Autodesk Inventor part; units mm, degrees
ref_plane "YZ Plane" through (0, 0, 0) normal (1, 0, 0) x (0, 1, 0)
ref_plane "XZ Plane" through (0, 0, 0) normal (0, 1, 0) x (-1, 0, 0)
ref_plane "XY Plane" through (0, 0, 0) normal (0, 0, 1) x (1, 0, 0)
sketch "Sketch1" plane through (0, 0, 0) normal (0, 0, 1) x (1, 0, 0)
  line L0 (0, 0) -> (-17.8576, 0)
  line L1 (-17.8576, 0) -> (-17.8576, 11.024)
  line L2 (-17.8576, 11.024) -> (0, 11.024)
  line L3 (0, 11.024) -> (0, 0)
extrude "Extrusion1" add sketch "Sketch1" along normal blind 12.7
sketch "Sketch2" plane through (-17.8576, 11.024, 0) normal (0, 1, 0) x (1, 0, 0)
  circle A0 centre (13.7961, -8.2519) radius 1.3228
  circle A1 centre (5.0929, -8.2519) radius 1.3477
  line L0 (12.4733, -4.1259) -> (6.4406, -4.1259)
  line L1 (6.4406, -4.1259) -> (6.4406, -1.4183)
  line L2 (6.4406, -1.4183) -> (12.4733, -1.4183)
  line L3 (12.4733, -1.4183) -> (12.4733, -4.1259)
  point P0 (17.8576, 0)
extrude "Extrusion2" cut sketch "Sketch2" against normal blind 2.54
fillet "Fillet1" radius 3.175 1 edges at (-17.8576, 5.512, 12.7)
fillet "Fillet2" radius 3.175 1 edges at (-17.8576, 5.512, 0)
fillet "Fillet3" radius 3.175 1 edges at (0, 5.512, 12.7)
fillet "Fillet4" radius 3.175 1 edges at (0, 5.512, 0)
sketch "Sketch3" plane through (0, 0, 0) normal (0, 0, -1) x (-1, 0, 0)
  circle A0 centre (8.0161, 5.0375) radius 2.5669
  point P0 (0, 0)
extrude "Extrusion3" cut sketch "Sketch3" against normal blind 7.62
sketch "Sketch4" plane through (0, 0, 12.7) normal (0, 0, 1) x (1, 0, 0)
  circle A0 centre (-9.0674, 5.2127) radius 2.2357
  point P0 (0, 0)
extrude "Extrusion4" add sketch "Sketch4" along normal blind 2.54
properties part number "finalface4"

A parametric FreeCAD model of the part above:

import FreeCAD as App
import Part
import Sketcher
from FreeCAD import Vector
Q = App.Units.Quantity


def edges_at(feature, points):
    """Names of the edges that pass closest to the given points."""
    edges = feature.Shape.Edges
    near = lambda p: min(range(len(edges)), key=lambda i: edges[i].distToShape(Part.Vertex(*p))[0])
    return sorted({f"Edge{near(p) + 1}" for p in points})


def add_polygon(sketch, points):
    """Adds a closed chain of lines whose ends are joined by coincident constraints."""
    first, n = sketch.GeometryCount, len(points)
    for a, b in zip(points, points[1:] + points[:1]):
        sketch.addGeometry(Part.LineSegment(App.Vector(*a, 0), App.Vector(*b, 0)), False)
    for i in range(n):
        sketch.addConstraint(Sketcher.Constraint("Coincident", first + i, 2, first + (i + 1) % n, 1))

doc = App.newDocument("Part")
body = doc.addObject("PartDesign::Body", "Body")

# Sketch on XY plane
sketch1 = doc.addObject("Sketcher::SketchObject", "Sketch")
body.addObject(sketch1)
sketch1.AttachmentSupport = (doc.XY_Plane, [""])
sketch1.MapMode = "FlatFace"
add_polygon(sketch1, [(-18, 0), (0, 0), (0, 11), (-18, 11)])  # lines 0-3
sketch1.addConstraint([
    Sketcher.Constraint("Horizontal", 0),
    Sketcher.Constraint("Vertical", 1),
    Sketcher.Constraint("Horizontal", 2),
    Sketcher.Constraint("Vertical", 3),
    Sketcher.Constraint("Coincident", 0, 2, -1, 1),
    Sketcher.Constraint("DistanceX", 0, 1, 0, 2, 17.8576),
    Sketcher.Constraint("DistanceY", 1, 1, 1, 2, 11.024),
])
pad1 = doc.addObject("PartDesign::Pad", "Pad")
body.addObject(pad1)
pad1.Profile = sketch1
pad1.Length = Q("0.5 in")

# Sketch on XZ plane
sketch2 = doc.addObject("Sketcher::SketchObject", "Sketch001")
body.addObject(sketch2)
sketch2.AttachmentSupport = (doc.XZ_Plane, [""])
sketch2.MapMode = "FlatFace"
sketch2.AttachmentOffset = App.Placement(Vector(0, 0, -11.024), App.Rotation())
sketch2.addGeometry(Part.Circle(Vector(-4.1, 8.3, 0), Vector(0, 0, 1), 1.3), False)  # 0
sketch2.addGeometry(Part.Circle(Vector(-12.8, 8.3, 0), Vector(0, 0, 1), 1.3), False)  # 1
add_polygon(sketch2, [(-11.4, 4.1), (-5.4, 4.1), (-5.4, 1.4), (-11.4, 1.4)])  # lines 2-5
sketch2.addConstraint([
    Sketcher.Constraint("Horizontal", 2),
    Sketcher.Constraint("Vertical", 3),
    Sketcher.Constraint("Horizontal", 4),
    Sketcher.Constraint("Vertical", 5),
    Sketcher.Constraint("Horizontal", 0, 3, 1, 3),
    Sketcher.Constraint("Diameter", 0, 2.6456),
    Sketcher.Constraint("Diameter", 1, 2.6954),
    Sketcher.Constraint("DistanceX", 2, 1, 2, 2, Q("0.2375 in")),
    Sketcher.Constraint("DistanceY", 3, 2, 3, 1, Q("0.1066 in")),
    Sketcher.Constraint("DistanceX", 0, 3, -1, 1, Q("0.1599 in")),
    Sketcher.Constraint("DistanceX", 4, 2, -1, 1, Q("0.4495 in")),
    Sketcher.Constraint("DistanceY", -1, 1, 0, 3, 8.252),
    Sketcher.Constraint("DistanceX", 1, 3, -1, 1, 12.7647),
    Sketcher.Constraint("DistanceY", -1, 1, 2, 2, 4.126),
])
pocket1 = doc.addObject("PartDesign::Pocket", "Pocket")
body.addObject(pocket1)
pocket1.Profile = sketch2
pocket1.Length = Q("0.1 in")
pocket1.Reversed = True
doc.recompute()

fillet = doc.addObject("PartDesign::Fillet", "Fillet")
body.addObject(fillet)
fillet.Base = (pocket1, edges_at(pocket1, [(-17.858, 5.512, 12.7)]))
fillet.Radius = Q("0.125 in")
doc.recompute()

fillet2 = doc.addObject("PartDesign::Fillet", "Fillet001")
body.addObject(fillet2)
fillet2.Base = (fillet, edges_at(fillet, [(-17.858, 5.512, 0)]))
fillet2.Radius = Q("0.125 in")
doc.recompute()

fillet3 = doc.addObject("PartDesign::Fillet", "Fillet002")
body.addObject(fillet3)
fillet3.Base = (fillet2, edges_at(fillet2, [(0, 5.512, 12.7)]))
fillet3.Radius = Q("0.125 in")
doc.recompute()

fillet4 = doc.addObject("PartDesign::Fillet", "Fillet003")
body.addObject(fillet4)
fillet4.Base = (fillet3, edges_at(fillet3, [(0, 5.512, 0)]))
fillet4.Radius = Q("0.125 in")

# Sketch on XY plane
sketch3 = doc.addObject("Sketcher::SketchObject", "Sketch002")
body.addObject(sketch3)
sketch3.AttachmentSupport = (doc.XY_Plane, [""])
sketch3.MapMode = "FlatFace"
sketch3.addGeometry(Part.Circle(Vector(-8, 5, 0), Vector(0, 0, 1), 2.6), False)
sketch3.addConstraint([
    Sketcher.Constraint("Diameter", 0, 5.1338),
    Sketcher.Constraint("DistanceX", 0, 3, -1, 1, Q("0.3156 in")),
    Sketcher.Constraint("DistanceY", -1, 1, 0, 3, 5.0375),
])
pocket2 = doc.addObject("PartDesign::Pocket", "Pocket001")
body.addObject(pocket2)
pocket2.Profile = sketch3
pocket2.Length = Q("0.3 in")
pocket2.Reversed = True

# Sketch on XY plane
sketch4 = doc.addObject("Sketcher::SketchObject", "Sketch003")
body.addObject(sketch4)
sketch4.AttachmentSupport = (doc.XY_Plane, [""])
sketch4.MapMode = "FlatFace"
sketch4.AttachmentOffset = App.Placement(Vector(0, 0, 0.5 * 25.4), App.Rotation())
sketch4.addGeometry(Part.Circle(Vector(-9.1, 5.2, 0), Vector(0, 0, 1), 2.2), False)
sketch4.addConstraint([
    Sketcher.Constraint("Diameter", 0, 4.4714),
    Sketcher.Constraint("DistanceX", 0, 3, -1, 1, 9.0674),
    Sketcher.Constraint("DistanceY", -1, 1, 0, 3, 5.2127),
])
pad2 = doc.addObject("PartDesign::Pad", "Pad001")
body.addObject(pad2)
pad2.Profile = sketch4
pad2.Length = Q("0.1 in")

doc.recompute()
